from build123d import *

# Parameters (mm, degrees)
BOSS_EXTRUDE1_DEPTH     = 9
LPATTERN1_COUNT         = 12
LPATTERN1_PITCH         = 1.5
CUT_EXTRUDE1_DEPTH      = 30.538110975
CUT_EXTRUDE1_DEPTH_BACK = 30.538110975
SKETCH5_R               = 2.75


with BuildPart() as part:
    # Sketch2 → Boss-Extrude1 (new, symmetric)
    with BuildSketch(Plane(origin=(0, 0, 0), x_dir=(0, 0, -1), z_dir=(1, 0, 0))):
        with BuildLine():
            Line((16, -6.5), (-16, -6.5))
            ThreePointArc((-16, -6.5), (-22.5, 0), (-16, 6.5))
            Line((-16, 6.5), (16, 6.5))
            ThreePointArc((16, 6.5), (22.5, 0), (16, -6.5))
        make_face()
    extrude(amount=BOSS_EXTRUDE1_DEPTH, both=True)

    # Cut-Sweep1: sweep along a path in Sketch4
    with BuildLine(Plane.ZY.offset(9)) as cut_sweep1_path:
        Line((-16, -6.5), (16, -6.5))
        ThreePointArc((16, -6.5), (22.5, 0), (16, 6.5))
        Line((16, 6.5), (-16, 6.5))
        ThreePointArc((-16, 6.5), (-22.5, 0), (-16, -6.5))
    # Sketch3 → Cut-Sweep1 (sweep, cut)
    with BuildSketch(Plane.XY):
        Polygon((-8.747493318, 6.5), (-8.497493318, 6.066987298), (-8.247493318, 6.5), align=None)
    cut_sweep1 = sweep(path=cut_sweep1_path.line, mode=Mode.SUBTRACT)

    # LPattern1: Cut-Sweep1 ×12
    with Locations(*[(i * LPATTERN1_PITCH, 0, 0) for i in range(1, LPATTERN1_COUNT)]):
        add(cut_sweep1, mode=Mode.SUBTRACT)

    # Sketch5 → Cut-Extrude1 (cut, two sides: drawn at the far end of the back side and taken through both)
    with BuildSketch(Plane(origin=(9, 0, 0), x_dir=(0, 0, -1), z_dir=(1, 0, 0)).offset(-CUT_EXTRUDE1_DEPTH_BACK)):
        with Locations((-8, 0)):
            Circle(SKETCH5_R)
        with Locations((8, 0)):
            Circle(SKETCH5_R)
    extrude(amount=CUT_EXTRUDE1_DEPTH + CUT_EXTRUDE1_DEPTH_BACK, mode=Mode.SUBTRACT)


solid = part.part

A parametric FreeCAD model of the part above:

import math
import FreeCAD as App
import Part
import Sketcher
Q = App.Units.Quantity

doc = App.newDocument("Part")
params = doc.addObject("Spreadsheet::Sheet", "Params")
for row, (alias, value) in enumerate([
    ("sketch1_radius", "6.5 mm"),
    ("sketch1_height", "32 mm"),
    ("pad1_length", "18 mm"),
    ("sketch2_width", "0.5 mm"),
    ("sketch3_radius", "6.5 mm"),
    ("sketch3_height", "32 mm"),
    ("linearpattern_pitch", "1.5 mm"),
    ("sketch4_diameter", "5.5 mm"),
], start=1):
    params.set(f"A{row}", alias)
    params.set(f"B{row}", "=" + value)
    params.setAlias(f"B{row}", alias)

body = doc.addObject("PartDesign::Body", "Body")

# Sketch on YZ plane
sketch1 = body.newObject("Sketcher::SketchObject", "Sketch")
sketch1.AttachmentSupport = (doc.getObject("YZ_Plane"), [""])
sketch1.MapMode = "FlatFace"
sketch1.addGeometry([
    Part.LineSegment(App.Vector(-6, 16, 0), App.Vector(-6, -16, 0)),
    Part.ArcOfCircle(Part.Circle(App.Vector(0, -16, 0), App.Vector(0, 0, 1), 6), math.radians(180), math.radians(360)),
    Part.LineSegment(App.Vector(6, -16, 0), App.Vector(6, 16, 0)),
    Part.ArcOfCircle(Part.Circle(App.Vector(0, 16, 0), App.Vector(0, 0, 1), 6), math.radians(0), math.radians(180)),
], False)
sketch1.addConstraint([
    Sketcher.Constraint("Tangent", 0, 2, 1, 1),
    Sketcher.Constraint("Tangent", 1, 2, 2, 1),
    Sketcher.Constraint("Tangent", 2, 2, 3, 1),
    Sketcher.Constraint("Tangent", 3, 2, 0, 1),
    Sketcher.Constraint("Vertical", 0),
    Sketcher.Constraint("Vertical", 2),
    Sketcher.Constraint("Symmetric", 1, 3, 3, 3, -1, 1),
    Sketcher.Constraint("Radius", 1, 6.5),
    Sketcher.Constraint("DistanceY", 0, 2, 0, 1, 32.0),
])
sketch1.setExpression("Constraints[7]", "Params.sketch1_radius")
sketch1.setExpression("Constraints[8]", "Params.sketch1_height")
pad1 = body.newObject("PartDesign::Pad", "Pad")
pad1.Profile = sketch1
pad1.setExpression("Length", "Params.pad1_length")
pad1.Midplane = True

# Sketch on XY plane
sketch2 = body.newObject("Sketcher::SketchObject", "Sketch001")
sketch2.AttachmentSupport = (doc.getObject("XY_Plane"), [""])
sketch2.MapMode = "FlatFace"
sketch2.addGeometry([
    Part.LineSegment(App.Vector(-8.7, 6.5, 0), App.Vector(-8.5, 6.1, 0)),
    Part.LineSegment(App.Vector(-8.5, 6.1, 0), App.Vector(-8.2, 6.5, 0)),
    Part.LineSegment(App.Vector(-8.2, 6.5, 0), App.Vector(-8.7, 6.5, 0)),
], False)
sketch2.addConstraint([
    Sketcher.Constraint("Coincident", 0, 2, 1, 1),
    Sketcher.Constraint("Coincident", 1, 2, 2, 1),
    Sketcher.Constraint("Coincident", 2, 2, 0, 1),
    Sketcher.Constraint("Horizontal", 2),
    Sketcher.Constraint("Equal", 0, 1),
    Sketcher.Constraint("Angle", 0, Q("-60 deg")),
    Sketcher.Constraint("DistanceX", 2, 2, 2, 1, 0.5),
    Sketcher.Constraint("DistanceY", -1, 1, 1, 2, 6.5),
    Sketcher.Constraint("DistanceX", 0, 2, -1, 1, 8.497493),
])
sketch2.setExpression("Constraints[6]", "Params.sketch2_width")

# Sketch on YZ plane
sketch3 = body.newObject("Sketcher::SketchObject", "Sketch002")
sketch3.AttachmentSupport = (doc.getObject("YZ_Plane"), [""])
sketch3.MapMode = "FlatFace"
sketch3.AttachmentOffset = App.Placement(App.Vector(0, 0, -9), App.Rotation())
sketch3.addGeometry([
    Part.LineSegment(App.Vector(-6, -16, 0), App.Vector(-6, 16, 0)),
    Part.ArcOfCircle(Part.Circle(App.Vector(0, 16, 0), App.Vector(0, 0, 1), 6), math.radians(0), math.radians(180)),
    Part.LineSegment(App.Vector(6, 16, 0), App.Vector(6, -16, 0)),
    Part.ArcOfCircle(Part.Circle(App.Vector(0, -16, 0), App.Vector(0, 0, 1), 6), math.radians(180), math.radians(360)),
], False)
sketch3.addConstraint([
    Sketcher.Constraint("Tangent", 0, 2, 1, 2),
    Sketcher.Constraint("Tangent", 1, 1, 2, 1),
    Sketcher.Constraint("Tangent", 2, 2, 3, 2),
    Sketcher.Constraint("Tangent", 3, 1, 0, 1),
    Sketcher.Constraint("Vertical", 0),
    Sketcher.Constraint("Vertical", 2),
    Sketcher.Constraint("Symmetric", 1, 3, 3, 3, -1, 1),
    Sketcher.Constraint("Radius", 1, 6.5),
    Sketcher.Constraint("DistanceY", 0, 1, 0, 2, 32.0),
])
sketch3.setExpression("Constraints[7]", "Params.sketch3_radius")
sketch3.setExpression("Constraints[8]", "Params.sketch3_height")
doc.recompute()

subtractivepipe = body.newObject("PartDesign::SubtractivePipe", "SubtractivePipe")
subtractivepipe.Profile = sketch2
subtractivepipe.Spine = (sketch3, ["Edge1", "Edge2", "Edge3", "Edge4"])
doc.recompute()

linearpattern = body.newObject("PartDesign::LinearPattern", "LinearPattern")
linearpattern.Originals = [subtractivepipe]
linearpattern.Direction = (doc.getObject("X_Axis"), [""])
linearpattern.Mode = "offset"
linearpattern.setExpression("Offset", "Params.linearpattern_pitch")
linearpattern.Occurrences = 12
body.Tip = linearpattern

# Sketch on YZ plane
sketch4 = body.newObject("Sketcher::SketchObject", "Sketch003")
sketch4.AttachmentSupport = (doc.getObject("YZ_Plane"), [""])
sketch4.MapMode = "FlatFace"
sketch4.AttachmentOffset = App.Placement(App.Vector(0, 0, 9), App.Rotation())
sketch4.addGeometry([
    Part.Circle(App.Vector(0, 8, 0), App.Vector(0, 0, 1), 2.8),
    Part.Circle(App.Vector(0, -8, 0), App.Vector(0, 0, 1), 2.8),
], False)
sketch4.addConstraint([
    Sketcher.Constraint("Equal", 0, 1),
    Sketcher.Constraint("Symmetric", 0, 3, 1, 3, -1, 1),
    Sketcher.Constraint("PointOnObject", 0, 3, -2),
    Sketcher.Constraint("Diameter", 0, 5.5),
    Sketcher.Constraint("DistanceY", -1, 1, 0, 3, 8.0),
])
sketch4.setExpression("Constraints[3]", "Params.sketch4_diameter")
pocket1 = body.newObject("PartDesign::Pocket", "Pocket")
pocket1.Profile = sketch4
pocket1.Type = "ThroughAll"
pocket1.Midplane = True

doc.recompute()
